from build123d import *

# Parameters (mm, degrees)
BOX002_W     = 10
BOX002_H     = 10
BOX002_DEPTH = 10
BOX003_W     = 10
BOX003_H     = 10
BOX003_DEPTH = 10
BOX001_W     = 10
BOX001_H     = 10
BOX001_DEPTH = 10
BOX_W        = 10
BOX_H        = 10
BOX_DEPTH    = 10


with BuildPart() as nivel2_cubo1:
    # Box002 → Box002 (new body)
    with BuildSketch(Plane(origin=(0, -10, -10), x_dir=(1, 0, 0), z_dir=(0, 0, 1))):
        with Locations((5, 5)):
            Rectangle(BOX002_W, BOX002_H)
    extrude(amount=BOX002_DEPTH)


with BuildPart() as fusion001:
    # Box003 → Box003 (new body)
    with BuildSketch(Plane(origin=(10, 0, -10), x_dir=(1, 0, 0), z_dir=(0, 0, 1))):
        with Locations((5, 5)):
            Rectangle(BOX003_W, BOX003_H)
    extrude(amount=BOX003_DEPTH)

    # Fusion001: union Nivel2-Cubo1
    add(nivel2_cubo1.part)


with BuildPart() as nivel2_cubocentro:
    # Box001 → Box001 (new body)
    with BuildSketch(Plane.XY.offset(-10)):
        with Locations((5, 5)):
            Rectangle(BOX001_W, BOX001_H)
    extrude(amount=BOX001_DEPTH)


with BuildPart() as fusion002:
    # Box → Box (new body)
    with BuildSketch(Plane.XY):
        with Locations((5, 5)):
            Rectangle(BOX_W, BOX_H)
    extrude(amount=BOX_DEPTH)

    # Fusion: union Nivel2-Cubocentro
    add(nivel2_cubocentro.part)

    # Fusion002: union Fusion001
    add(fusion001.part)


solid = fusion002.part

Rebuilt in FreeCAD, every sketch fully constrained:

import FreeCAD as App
import Part
import Sketcher
from FreeCAD import Vector


def add_polygon(sketch, points):
    """Adds a closed chain of lines whose ends are joined by coincident constraints."""
    first, n = sketch.GeometryCount, len(points)
    for a, b in zip(points, points[1:] + points[:1]):
        sketch.addGeometry(Part.LineSegment(App.Vector(*a, 0), App.Vector(*b, 0)), False)
    for i in range(n):
        sketch.addConstraint(Sketcher.Constraint("Coincident", first + i, 2, first + (i + 1) % n, 1))

doc = App.newDocument("Part")
body = doc.addObject("PartDesign::Body", "Body")

# Sketch on XY plane
sketch1 = body.newObject("Sketcher::SketchObject", "Sketch")
sketch1.AttachmentSupport = (doc.getObject("XY_Plane"), [""])
sketch1.MapMode = "FlatFace"
sketch1.AttachmentOffset = App.Placement(Vector(0, 0, -10), App.Rotation())
add_polygon(sketch1, [(0, 0), (0, -10), (10, -10), (10, 0)])  # lines 0-3
sketch1.addConstraint([
    Sketcher.Constraint("Vertical", 0),
    Sketcher.Constraint("Horizontal", 1),
    Sketcher.Constraint("Vertical", 2),
    Sketcher.Constraint("Horizontal", 3),
    Sketcher.Constraint("Coincident", 3, 2, -1, 1),
    Sketcher.Constraint("Equal", 3, 0),
    Sketcher.Constraint("DistanceX", 1, 1, 1, 2, 10.0),
])
pad1 = body.newObject("PartDesign::Pad", "Pad")
pad1.Profile = sketch1
pad1.Length = 10
body2 = doc.addObject("PartDesign::Body", "Body001")
body2.AllowCompound = True

# Sketch on XY plane
sketch2 = body2.newObject("Sketcher::SketchObject", "Sketch001")
sketch2.AttachmentSupport = (doc.getObject("XY_Plane001"), [""])
sketch2.MapMode = "FlatFace"
sketch2.AttachmentOffset = App.Placement(Vector(0, 0, -10), App.Rotation())
add_polygon(sketch2, [(10, 10), (10, 0), (20, 0), (20, 10)])  # lines 0-3
sketch2.addConstraint([
    Sketcher.Constraint("Vertical", 0),
    Sketcher.Constraint("Horizontal", 1),
    Sketcher.Constraint("Vertical", 2),
    Sketcher.Constraint("Horizontal", 3),
    Sketcher.Constraint("PointOnObject", 0, 2, -1),
    Sketcher.Constraint("Equal", 3, 0),
    Sketcher.Constraint("DistanceX", 1, 1, 1, 2, 10.0),
    Sketcher.Constraint("DistanceX", -1, 1, 0, 2, 10.0),
])
pad2 = body2.newObject("PartDesign::Pad", "Pad001")
pad2.Profile = sketch2
pad2.Length = 10
doc.recompute()

boolean = body2.newObject("PartDesign::Boolean", "Boolean")
boolean.Type = "Fuse"
boolean.addObjects([body])
body3 = doc.addObject("PartDesign::Body", "Body002")

# Sketch on XY plane
sketch3 = body3.newObject("Sketcher::SketchObject", "Sketch002")
sketch3.AttachmentSupport = (doc.getObject("XY_Plane002"), [""])
sketch3.MapMode = "FlatFace"
sketch3.AttachmentOffset = App.Placement(Vector(0, 0, -10), App.Rotation())
add_polygon(sketch3, [(0, 10), (0, 0), (10, 0), (10, 10)])  # lines 0-3
sketch3.addConstraint([
    Sketcher.Constraint("Vertical", 0),
    Sketcher.Constraint("Horizontal", 1),
    Sketcher.Constraint("Vertical", 2),
    Sketcher.Constraint("Horizontal", 3),
    Sketcher.Constraint("Coincident", 0, 2, -1, 1),
    Sketcher.Constraint("Equal", 3, 0),
    Sketcher.Constraint("DistanceX", 1, 1, 1, 2, 10.0),
])
pad3 = body3.newObject("PartDesign::Pad", "Pad002")
pad3.Profile = sketch3
pad3.Length = 10
body4 = doc.addObject("PartDesign::Body", "Body003")

# Sketch on XY plane
sketch4 = body4.newObject("Sketcher::SketchObject", "Sketch003")
sketch4.AttachmentSupport = (doc.getObject("XY_Plane003"), [""])
sketch4.MapMode = "FlatFace"
add_polygon(sketch4, [(0, 10), (0, 0), (10, 0), (10, 10)])  # lines 0-3
sketch4.addConstraint([
    Sketcher.Constraint("Vertical", 0),
    Sketcher.Constraint("Horizontal", 1),
    Sketcher.Constraint("Vertical", 2),
    Sketcher.Constraint("Horizontal", 3),
    Sketcher.Constraint("Coincident", 0, 2, -1, 1),
    Sketcher.Constraint("Equal", 3, 0),
    Sketcher.Constraint("DistanceX", 1, 1, 1, 2, 10.0),
])
pad4 = body4.newObject("PartDesign::Pad", "Pad003")
pad4.Profile = sketch4
pad4.Length = 10
doc.recompute()

boolean2 = body4.newObject("PartDesign::Boolean", "Boolean001")
boolean2.Type = "Fuse"
boolean2.addObjects([body3])
doc.recompute()

boolean3 = body4.newObject("PartDesign::Boolean", "Boolean002")
boolean3.Type = "Fuse"
boolean3.addObjects([body2])

doc.recompute()
